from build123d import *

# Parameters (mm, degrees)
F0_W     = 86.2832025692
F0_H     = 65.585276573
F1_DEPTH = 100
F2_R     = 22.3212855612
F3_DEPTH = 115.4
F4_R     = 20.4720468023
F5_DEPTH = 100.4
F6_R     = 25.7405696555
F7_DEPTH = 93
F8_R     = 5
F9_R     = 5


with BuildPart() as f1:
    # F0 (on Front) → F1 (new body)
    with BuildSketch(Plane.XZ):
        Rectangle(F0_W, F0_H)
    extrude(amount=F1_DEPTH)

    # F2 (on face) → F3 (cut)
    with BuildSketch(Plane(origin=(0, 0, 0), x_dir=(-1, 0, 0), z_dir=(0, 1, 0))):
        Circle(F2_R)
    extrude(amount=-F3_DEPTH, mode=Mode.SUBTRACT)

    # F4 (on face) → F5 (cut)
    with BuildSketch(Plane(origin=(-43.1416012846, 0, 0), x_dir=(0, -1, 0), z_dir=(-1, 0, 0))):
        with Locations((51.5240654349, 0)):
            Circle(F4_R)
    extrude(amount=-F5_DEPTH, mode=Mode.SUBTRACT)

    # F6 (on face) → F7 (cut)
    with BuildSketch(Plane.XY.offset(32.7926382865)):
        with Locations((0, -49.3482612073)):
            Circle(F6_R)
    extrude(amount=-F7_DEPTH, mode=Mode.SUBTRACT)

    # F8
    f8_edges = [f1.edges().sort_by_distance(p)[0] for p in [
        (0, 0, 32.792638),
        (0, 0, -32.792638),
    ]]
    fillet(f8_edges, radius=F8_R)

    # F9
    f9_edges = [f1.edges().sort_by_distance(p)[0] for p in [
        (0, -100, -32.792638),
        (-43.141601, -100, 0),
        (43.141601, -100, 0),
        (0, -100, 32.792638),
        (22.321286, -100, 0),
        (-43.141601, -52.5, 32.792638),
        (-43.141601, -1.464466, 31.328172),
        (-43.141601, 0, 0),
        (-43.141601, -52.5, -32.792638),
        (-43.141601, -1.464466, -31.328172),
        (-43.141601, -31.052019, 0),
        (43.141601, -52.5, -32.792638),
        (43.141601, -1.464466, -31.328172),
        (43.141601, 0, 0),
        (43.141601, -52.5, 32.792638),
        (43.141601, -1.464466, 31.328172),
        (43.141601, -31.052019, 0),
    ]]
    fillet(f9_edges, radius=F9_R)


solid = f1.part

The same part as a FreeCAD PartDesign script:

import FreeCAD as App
import Part
import Sketcher

V = App.Vector
Q = App.Units.Quantity


def edges_at(feature, points):
    """Names of the edges that pass closest to the given points."""
    edges = feature.Shape.Edges
    near = lambda p: min(range(len(edges)), key=lambda i: edges[i].distToShape(Part.Vertex(*p))[0])
    return sorted({f"Edge{near(p) + 1}" for p in points})


def add_polygon(sketch, points):
    """Adds a closed chain of lines whose ends are joined by coincident constraints."""
    first, n = sketch.GeometryCount, len(points)
    for a, b in zip(points, points[1:] + points[:1]):
        sketch.addGeometry(Part.LineSegment(App.Vector(*a, 0), App.Vector(*b, 0)), False)
    for i in range(n):
        sketch.addConstraint(Sketcher.Constraint("Coincident", first + i, 2, first + (i + 1) % n, 1))

doc = App.newDocument("Part")
body = doc.addObject("PartDesign::Body", "Body")

# Sketch on XZ plane
sketch1 = doc.addObject("Sketcher::SketchObject", "Sketch")
body.addObject(sketch1)
sketch1.AttachmentSupport = (doc.XZ_Plane, [""])
sketch1.MapMode = "FlatFace"
add_polygon(sketch1, [(-43, 33), (-43, -33), (43, -33), (43, 33)])  # lines 0-3
sketch1.addConstraint(Sketcher.Constraint("Vertical", 0))
sketch1.addConstraint(Sketcher.Constraint("Horizontal", 1))
sketch1.addConstraint(Sketcher.Constraint("Vertical", 2))
sketch1.addConstraint(Sketcher.Constraint("Horizontal", 3))
sketch1.addConstraint(Sketcher.Constraint("Symmetric", 0, 2, 2, 2, -1, 1))
sketch1.addConstraint(Sketcher.Constraint("DistanceX", 0, 2, -1, 1, Q("43.141601 mm")))
sketch1.addConstraint(Sketcher.Constraint("DistanceY", 0, 2, 0, 1, Q("65.585277 mm")))
pad1 = doc.addObject("PartDesign::Pad", "Pad")
body.addObject(pad1)
pad1.Profile = sketch1
pad1.Length = 100

# Sketch on XZ plane
sketch2 = doc.addObject("Sketcher::SketchObject", "Sketch001")
body.addObject(sketch2)
sketch2.AttachmentSupport = (doc.XZ_Plane, [""])
sketch2.MapMode = "FlatFace"
sketch2.addGeometry(Part.Circle(V(0, 0, 0), V(0, 0, 1), 22), False)
sketch2.addConstraint(Sketcher.Constraint("Coincident", 0, 3, -1, 1))
sketch2.addConstraint(Sketcher.Constraint("Diameter", 0, Q("44.642571 mm")))
pocket1 = doc.addObject("PartDesign::Pocket", "Pocket")
body.addObject(pocket1)
pocket1.Profile = sketch2
pocket1.Length = 115.4
pocket1.Reversed = True

# Sketch on YZ plane
sketch3 = doc.addObject("Sketcher::SketchObject", "Sketch002")
body.addObject(sketch3)
sketch3.AttachmentSupport = (doc.YZ_Plane, [""])
sketch3.MapMode = "FlatFace"
sketch3.AttachmentOffset = App.Placement(V(0, 0, -43.141601), App.Rotation())
sketch3.addGeometry(Part.Circle(V(-52, 0, 0), V(0, 0, 1), 20), False)
sketch3.addConstraint(Sketcher.Constraint("PointOnObject", 0, 3, -1))
sketch3.addConstraint(Sketcher.Constraint("Diameter", 0, Q("40.944094 mm")))
sketch3.addConstraint(Sketcher.Constraint("DistanceX", 0, 3, -1, 1, Q("51.524065 mm")))
pocket2 = doc.addObject("PartDesign::Pocket", "Pocket001")
body.addObject(pocket2)
pocket2.Profile = sketch3
pocket2.Length = 100.4
pocket2.Reversed = True

# Sketch on XY plane
sketch4 = doc.addObject("Sketcher::SketchObject", "Sketch003")
body.addObject(sketch4)
sketch4.AttachmentSupport = (doc.XY_Plane, [""])
sketch4.MapMode = "FlatFace"
sketch4.AttachmentOffset = App.Placement(V(0, 0, 32.792638), App.Rotation())
sketch4.addGeometry(Part.Circle(V(0, -49, 0), V(0, 0, 1), 26), False)
sketch4.addConstraint(Sketcher.Constraint("PointOnObject", 0, 3, -2))
sketch4.addConstraint(Sketcher.Constraint("Diameter", 0, Q("51.481139 mm")))
sketch4.addConstraint(Sketcher.Constraint("DistanceY", 0, 3, -1, 1, Q("49.348261 mm")))
pocket3 = doc.addObject("PartDesign::Pocket", "Pocket002")
body.addObject(pocket3)
pocket3.Profile = sketch4
pocket3.Length = 93
doc.recompute()

fillet = doc.addObject("PartDesign::Fillet", "Fillet")
body.addObject(fillet)
fillet.Base = (pocket3, edges_at(pocket3, [(0, 0, 32.793), (0, 0, -32.793)]))
fillet.Radius = 5
doc.recompute()

fillet2 = doc.addObject("PartDesign::Fillet", "Fillet001")
body.addObject(fillet2)
fillet2.Base = (fillet, edges_at(fillet, [
    (0, -100, -32.793),
    (-43.142, -100, 0),
    (43.142, -100, 0),
    (0, -100, 32.793),
    (22.321, -100, 0),
    (-43.142, -52.5, 32.793),
    (-43.142, -1.464, 31.328),
    (-43.142, 0, 0),
    (-43.142, -52.5, -32.793),
    (-43.142, -1.464, -31.328),
    (-43.142, -31.052, 0),
    (43.142, -52.5, -32.793),
    (43.142, -1.464, -31.328),
    (43.142, 0, 0),
    (43.142, -52.5, 32.793),
    (43.142, -1.464, 31.328),
    (43.142, -31.052, 0),
]))
fillet2.Radius = 5

doc.recompute()
